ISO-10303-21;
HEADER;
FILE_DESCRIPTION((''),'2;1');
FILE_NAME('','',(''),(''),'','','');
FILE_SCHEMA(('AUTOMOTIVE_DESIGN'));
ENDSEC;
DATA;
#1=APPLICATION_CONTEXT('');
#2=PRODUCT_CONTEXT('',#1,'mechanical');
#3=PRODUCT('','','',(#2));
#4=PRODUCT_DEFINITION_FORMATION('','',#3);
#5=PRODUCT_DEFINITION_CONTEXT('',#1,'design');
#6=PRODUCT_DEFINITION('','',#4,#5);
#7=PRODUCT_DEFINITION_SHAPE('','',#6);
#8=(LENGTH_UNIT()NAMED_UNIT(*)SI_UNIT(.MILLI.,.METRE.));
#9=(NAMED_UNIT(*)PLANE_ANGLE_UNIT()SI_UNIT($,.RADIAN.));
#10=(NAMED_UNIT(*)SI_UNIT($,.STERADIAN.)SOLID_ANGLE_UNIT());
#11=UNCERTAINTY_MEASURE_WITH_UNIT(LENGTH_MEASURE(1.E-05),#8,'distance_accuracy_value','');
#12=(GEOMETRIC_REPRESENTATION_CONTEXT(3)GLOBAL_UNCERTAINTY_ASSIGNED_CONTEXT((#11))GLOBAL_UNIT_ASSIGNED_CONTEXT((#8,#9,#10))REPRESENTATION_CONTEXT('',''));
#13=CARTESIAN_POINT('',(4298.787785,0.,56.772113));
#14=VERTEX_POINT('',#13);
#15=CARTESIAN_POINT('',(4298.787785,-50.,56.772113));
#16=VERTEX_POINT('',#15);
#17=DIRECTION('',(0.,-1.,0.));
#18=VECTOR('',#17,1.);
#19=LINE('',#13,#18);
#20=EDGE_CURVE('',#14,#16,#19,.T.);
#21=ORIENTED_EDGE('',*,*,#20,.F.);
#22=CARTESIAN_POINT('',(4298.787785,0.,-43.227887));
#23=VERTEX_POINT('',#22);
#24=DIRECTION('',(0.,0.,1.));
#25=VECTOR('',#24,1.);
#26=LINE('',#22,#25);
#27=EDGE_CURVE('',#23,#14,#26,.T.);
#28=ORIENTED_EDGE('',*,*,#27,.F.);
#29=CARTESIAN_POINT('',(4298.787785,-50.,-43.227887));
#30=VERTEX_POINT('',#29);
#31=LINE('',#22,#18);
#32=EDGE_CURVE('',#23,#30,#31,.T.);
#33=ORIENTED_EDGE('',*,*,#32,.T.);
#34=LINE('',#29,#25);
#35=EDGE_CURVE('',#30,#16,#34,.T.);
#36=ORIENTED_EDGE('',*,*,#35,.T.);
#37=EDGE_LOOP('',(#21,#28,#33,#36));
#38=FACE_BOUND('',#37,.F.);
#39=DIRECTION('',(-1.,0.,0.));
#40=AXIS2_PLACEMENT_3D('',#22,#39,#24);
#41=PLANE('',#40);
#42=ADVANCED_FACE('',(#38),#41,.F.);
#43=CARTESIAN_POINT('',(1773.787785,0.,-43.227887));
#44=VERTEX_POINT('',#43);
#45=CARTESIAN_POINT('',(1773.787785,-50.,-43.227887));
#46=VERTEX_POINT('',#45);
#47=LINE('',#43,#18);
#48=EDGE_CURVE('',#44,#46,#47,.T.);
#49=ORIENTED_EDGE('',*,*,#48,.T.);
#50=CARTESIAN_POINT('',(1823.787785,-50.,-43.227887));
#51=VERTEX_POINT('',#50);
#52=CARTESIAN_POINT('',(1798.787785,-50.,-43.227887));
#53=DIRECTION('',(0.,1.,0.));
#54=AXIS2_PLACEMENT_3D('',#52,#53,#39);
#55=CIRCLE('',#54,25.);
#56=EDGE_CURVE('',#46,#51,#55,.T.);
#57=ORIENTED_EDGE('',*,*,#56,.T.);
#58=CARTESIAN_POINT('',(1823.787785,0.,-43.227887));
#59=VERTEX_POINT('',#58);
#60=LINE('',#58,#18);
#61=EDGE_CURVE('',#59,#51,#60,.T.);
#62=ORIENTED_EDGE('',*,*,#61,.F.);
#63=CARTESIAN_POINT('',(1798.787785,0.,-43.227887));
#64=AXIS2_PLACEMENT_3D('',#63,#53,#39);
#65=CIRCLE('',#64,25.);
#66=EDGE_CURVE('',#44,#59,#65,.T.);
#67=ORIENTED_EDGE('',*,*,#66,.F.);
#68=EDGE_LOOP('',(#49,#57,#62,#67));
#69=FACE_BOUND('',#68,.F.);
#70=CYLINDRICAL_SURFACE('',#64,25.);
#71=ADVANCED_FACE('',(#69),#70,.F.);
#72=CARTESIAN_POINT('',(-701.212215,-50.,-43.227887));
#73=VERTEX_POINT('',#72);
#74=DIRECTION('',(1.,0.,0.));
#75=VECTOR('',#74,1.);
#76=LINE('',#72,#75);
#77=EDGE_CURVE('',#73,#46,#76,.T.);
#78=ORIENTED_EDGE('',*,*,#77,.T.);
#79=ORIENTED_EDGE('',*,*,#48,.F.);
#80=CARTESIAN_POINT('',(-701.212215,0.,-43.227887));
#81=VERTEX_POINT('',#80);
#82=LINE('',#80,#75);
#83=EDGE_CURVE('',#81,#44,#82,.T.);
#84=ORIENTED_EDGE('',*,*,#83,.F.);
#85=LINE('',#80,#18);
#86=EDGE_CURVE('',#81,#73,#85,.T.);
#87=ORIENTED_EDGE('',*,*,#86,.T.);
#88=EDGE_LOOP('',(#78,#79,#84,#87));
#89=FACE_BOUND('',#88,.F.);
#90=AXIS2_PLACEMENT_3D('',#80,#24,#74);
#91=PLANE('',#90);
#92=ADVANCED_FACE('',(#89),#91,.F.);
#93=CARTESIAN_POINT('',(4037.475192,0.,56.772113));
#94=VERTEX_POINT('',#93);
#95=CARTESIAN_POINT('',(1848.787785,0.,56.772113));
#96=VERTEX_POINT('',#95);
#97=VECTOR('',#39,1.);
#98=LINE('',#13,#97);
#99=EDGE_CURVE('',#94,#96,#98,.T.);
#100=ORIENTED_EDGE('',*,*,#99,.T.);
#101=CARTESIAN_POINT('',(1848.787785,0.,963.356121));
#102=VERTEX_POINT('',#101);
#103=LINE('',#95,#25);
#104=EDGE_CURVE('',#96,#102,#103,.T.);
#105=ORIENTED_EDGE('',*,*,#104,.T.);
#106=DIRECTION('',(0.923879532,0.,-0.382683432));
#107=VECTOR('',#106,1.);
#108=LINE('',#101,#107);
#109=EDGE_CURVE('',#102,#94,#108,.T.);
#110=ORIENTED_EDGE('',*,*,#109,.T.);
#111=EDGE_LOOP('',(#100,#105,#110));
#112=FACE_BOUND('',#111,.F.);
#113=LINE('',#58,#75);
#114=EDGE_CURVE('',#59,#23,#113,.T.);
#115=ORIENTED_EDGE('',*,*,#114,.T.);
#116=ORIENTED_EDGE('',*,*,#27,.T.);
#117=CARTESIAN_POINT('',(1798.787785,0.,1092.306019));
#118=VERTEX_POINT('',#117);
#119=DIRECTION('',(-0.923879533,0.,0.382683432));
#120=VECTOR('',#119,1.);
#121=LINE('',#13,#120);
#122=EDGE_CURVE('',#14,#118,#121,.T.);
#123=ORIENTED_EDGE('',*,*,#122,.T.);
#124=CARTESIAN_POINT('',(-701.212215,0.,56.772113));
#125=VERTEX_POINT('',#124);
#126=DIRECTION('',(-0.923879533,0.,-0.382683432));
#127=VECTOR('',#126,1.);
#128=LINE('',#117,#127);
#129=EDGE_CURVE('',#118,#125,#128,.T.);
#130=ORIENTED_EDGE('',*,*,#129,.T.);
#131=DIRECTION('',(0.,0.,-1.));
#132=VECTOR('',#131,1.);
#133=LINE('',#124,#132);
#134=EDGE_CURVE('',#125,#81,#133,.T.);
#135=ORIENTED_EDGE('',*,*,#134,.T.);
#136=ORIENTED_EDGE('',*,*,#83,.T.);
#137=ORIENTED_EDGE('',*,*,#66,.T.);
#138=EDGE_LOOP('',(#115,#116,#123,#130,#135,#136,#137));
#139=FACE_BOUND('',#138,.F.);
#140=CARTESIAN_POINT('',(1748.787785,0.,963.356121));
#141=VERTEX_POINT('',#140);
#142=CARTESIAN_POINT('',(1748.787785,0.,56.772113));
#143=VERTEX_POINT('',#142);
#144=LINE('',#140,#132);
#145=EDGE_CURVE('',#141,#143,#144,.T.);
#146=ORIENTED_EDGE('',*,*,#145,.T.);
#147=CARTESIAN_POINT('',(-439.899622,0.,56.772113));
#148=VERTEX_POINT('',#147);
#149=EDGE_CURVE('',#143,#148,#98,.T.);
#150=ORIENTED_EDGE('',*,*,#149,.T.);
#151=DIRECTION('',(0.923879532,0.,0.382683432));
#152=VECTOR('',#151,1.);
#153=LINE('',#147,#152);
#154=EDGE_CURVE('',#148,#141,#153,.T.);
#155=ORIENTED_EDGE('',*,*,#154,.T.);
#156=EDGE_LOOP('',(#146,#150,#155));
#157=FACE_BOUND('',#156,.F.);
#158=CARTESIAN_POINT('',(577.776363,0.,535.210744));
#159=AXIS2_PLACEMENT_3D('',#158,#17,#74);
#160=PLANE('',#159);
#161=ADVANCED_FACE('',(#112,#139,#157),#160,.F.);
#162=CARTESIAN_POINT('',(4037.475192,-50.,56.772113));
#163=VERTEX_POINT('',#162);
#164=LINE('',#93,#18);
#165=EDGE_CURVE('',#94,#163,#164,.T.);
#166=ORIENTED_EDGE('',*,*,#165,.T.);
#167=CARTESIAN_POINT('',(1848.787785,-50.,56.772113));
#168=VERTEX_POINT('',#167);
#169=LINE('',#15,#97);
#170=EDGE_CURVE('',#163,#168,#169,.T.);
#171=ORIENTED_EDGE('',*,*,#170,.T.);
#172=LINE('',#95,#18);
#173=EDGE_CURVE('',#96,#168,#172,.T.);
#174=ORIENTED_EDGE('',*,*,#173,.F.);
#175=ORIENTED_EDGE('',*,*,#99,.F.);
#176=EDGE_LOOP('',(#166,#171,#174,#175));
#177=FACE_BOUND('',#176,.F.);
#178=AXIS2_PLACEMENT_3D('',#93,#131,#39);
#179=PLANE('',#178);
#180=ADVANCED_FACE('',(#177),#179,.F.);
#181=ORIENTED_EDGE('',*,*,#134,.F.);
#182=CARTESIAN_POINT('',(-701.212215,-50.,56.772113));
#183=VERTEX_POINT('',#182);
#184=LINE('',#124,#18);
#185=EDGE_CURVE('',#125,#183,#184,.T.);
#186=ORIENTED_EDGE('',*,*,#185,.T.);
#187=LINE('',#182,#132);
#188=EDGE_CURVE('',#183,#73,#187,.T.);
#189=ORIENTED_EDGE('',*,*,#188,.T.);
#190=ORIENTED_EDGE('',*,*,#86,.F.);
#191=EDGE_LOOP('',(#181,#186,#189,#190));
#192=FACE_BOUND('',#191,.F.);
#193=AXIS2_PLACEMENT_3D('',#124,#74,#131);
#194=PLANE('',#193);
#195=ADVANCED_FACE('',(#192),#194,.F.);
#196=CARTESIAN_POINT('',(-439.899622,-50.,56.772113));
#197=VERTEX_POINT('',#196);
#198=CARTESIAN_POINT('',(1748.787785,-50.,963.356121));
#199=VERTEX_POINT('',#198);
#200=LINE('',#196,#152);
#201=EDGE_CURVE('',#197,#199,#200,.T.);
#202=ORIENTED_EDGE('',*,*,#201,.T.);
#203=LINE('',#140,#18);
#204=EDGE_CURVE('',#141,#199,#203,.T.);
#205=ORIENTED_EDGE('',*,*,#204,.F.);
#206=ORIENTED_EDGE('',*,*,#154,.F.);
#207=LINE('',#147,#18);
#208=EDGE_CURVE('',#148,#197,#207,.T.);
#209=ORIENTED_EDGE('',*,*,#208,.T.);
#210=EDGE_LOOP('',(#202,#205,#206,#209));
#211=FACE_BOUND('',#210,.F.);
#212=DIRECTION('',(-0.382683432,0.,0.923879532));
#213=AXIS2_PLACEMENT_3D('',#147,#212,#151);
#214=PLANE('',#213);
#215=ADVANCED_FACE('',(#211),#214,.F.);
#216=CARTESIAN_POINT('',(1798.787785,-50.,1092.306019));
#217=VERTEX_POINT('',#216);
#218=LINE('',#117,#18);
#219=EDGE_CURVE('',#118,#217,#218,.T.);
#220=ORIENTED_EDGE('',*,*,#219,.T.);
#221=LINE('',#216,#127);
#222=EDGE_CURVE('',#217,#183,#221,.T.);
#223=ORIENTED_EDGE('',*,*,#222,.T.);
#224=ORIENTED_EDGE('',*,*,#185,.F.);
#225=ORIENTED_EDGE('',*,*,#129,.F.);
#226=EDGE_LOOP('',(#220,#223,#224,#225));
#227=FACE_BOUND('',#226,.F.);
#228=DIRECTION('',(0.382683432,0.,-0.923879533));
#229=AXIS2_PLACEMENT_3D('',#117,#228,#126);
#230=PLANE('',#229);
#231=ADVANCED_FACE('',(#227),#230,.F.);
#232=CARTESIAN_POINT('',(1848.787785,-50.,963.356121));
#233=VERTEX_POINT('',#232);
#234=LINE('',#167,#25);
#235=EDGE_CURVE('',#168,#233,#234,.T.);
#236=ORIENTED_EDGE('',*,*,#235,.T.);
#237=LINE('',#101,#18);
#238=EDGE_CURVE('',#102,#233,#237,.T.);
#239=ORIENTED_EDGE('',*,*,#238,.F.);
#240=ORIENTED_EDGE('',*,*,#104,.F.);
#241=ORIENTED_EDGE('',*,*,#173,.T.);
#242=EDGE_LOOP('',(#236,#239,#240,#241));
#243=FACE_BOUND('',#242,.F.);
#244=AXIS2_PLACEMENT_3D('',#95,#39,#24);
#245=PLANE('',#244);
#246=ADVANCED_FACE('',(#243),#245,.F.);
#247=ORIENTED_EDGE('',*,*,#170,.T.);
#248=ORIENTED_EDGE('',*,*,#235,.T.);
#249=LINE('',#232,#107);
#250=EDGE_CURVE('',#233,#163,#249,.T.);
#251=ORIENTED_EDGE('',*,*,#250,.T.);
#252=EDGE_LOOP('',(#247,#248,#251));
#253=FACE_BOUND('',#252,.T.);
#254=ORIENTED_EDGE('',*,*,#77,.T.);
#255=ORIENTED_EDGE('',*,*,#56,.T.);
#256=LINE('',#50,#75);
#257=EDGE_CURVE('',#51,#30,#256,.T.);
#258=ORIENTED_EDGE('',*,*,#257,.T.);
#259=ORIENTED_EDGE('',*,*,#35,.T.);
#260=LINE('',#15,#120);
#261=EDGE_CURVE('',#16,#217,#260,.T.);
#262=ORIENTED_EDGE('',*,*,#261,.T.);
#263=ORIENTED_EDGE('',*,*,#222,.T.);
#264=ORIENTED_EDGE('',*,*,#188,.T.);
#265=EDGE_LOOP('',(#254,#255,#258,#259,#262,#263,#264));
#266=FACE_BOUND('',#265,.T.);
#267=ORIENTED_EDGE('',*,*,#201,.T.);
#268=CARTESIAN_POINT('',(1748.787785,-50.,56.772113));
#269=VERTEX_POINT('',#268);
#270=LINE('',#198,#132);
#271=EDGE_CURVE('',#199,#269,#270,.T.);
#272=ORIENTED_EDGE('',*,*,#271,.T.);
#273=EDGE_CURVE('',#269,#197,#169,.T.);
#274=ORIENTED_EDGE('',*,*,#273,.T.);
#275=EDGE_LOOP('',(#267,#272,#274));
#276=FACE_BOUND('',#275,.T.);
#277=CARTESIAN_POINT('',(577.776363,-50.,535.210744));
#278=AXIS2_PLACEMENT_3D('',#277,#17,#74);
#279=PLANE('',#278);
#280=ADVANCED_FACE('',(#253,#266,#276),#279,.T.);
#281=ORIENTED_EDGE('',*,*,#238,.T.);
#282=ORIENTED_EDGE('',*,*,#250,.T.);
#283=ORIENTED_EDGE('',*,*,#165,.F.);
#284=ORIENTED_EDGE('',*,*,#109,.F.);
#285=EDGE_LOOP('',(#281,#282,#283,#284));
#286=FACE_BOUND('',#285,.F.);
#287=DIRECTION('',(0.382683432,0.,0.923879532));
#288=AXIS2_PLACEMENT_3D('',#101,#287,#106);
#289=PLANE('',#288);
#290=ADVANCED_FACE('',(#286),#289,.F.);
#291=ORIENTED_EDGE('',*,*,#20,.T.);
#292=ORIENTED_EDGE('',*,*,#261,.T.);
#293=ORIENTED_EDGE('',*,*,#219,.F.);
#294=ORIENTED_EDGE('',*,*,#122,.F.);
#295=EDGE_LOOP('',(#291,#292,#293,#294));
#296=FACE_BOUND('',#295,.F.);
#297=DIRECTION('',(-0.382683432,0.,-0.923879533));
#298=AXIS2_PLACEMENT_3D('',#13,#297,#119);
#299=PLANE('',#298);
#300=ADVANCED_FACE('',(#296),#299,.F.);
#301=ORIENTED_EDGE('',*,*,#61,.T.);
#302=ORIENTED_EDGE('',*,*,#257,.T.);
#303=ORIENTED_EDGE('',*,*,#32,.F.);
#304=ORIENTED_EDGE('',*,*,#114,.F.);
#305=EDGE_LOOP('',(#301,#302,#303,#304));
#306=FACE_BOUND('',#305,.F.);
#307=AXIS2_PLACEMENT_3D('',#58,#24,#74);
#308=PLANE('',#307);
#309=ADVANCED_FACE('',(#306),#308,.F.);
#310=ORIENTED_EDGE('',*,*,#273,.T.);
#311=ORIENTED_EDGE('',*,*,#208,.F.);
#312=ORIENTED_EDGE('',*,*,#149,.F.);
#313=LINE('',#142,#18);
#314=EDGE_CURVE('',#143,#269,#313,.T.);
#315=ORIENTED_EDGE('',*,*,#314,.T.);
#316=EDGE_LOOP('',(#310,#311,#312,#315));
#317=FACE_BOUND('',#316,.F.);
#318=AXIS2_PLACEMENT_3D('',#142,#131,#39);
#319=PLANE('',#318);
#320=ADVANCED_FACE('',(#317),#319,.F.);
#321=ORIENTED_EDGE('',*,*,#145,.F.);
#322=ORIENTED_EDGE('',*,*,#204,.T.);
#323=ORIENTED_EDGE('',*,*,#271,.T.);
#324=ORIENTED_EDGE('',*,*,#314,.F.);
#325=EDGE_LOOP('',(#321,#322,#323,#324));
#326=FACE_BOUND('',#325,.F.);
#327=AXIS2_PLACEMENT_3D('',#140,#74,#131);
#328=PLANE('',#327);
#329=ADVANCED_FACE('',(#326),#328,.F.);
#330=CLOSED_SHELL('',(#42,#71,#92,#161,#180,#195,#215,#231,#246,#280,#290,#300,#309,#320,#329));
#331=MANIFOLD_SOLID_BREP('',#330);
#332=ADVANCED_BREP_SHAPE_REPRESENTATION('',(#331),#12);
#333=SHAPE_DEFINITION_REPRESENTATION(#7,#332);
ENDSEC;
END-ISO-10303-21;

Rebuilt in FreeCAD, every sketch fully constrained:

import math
import FreeCAD as App
import Part
import Sketcher
Q = App.Units.Quantity

doc = App.newDocument("Part")
body = doc.addObject("PartDesign::Body", "Body")

sketch1 = body.newObject("Sketcher::SketchObject", "Sketch")
sketch1.AttachmentSupport = (doc.getObject("XZ_Plane"), [""])
sketch1.MapMode = "FlatFace"
sketch1.addGeometry([
    Part.LineSegment(App.Vector(1799, 1092, 0), App.Vector(-701, 57, 0)),
    Part.LineSegment(App.Vector(-701, 57, 0), App.Vector(-701, -43, 0)),
    Part.LineSegment(App.Vector(-701, -43, 0), App.Vector(1774, -43, 0)),
    Part.ArcOfCircle(Part.Circle(App.Vector(1799, -43, 0), App.Vector(0, 0, 1), 25), math.radians(0), math.radians(180)),
    Part.LineSegment(App.Vector(1824, -43, 0), App.Vector(4299, -43, 0)),
    Part.LineSegment(App.Vector(4299, -43, 0), App.Vector(4299, 57, 0)),
    Part.LineSegment(App.Vector(4299, 57, 0), App.Vector(1799, 1092, 0)),
    Part.LineSegment(App.Vector(-440, 57, 0), App.Vector(1749, 963, 0)),
    Part.LineSegment(App.Vector(1749, 963, 0), App.Vector(1749, 57, 0)),
    Part.LineSegment(App.Vector(1749, 57, 0), App.Vector(-440, 57, 0)),
    Part.LineSegment(App.Vector(1849, 57, 0), App.Vector(1849, 963, 0)),
    Part.LineSegment(App.Vector(1849, 963, 0), App.Vector(4037, 57, 0)),
    Part.LineSegment(App.Vector(4037, 57, 0), App.Vector(1849, 57, 0)),
], False)
sketch1.addConstraint([
    Sketcher.Constraint("Coincident", 0, 2, 1, 1),
    Sketcher.Constraint("Coincident", 1, 2, 2, 1),
    Sketcher.Constraint("Coincident", 2, 2, 3, 2),
    Sketcher.Constraint("Coincident", 3, 1, 4, 1),
    Sketcher.Constraint("Coincident", 4, 2, 5, 1),
    Sketcher.Constraint("Coincident", 5, 2, 6, 1),
    Sketcher.Constraint("Coincident", 6, 2, 0, 1),
    Sketcher.Constraint("Coincident", 7, 2, 8, 1),
    Sketcher.Constraint("Coincident", 8, 2, 9, 1),
    Sketcher.Constraint("Coincident", 9, 2, 7, 1),
    Sketcher.Constraint("Coincident", 10, 2, 11, 1),
    Sketcher.Constraint("Coincident", 11, 2, 12, 1),
    Sketcher.Constraint("Coincident", 12, 2, 10, 1),
    Sketcher.Constraint("Vertical", 1),
    Sketcher.Constraint("Horizontal", 2),
    Sketcher.Constraint("Horizontal", 4),
    Sketcher.Constraint("Vertical", 5),
    Sketcher.Constraint("Vertical", 8),
    Sketcher.Constraint("Horizontal", 9),
    Sketcher.Constraint("Vertical", 10),
    Sketcher.Constraint("Horizontal", 12),
    Sketcher.Constraint("Parallel", 0, 7),
    Sketcher.Constraint("Parallel", 6, 11),
    Sketcher.Constraint("Horizontal", 3, 3, 1, 2),
    Sketcher.Constraint("Horizontal", 2, 2, 3, 1),
    Sketcher.Constraint("Horizontal", 0, 2, 5, 2),
    Sketcher.Constraint("Horizontal", 5, 2, 8, 2),
    Sketcher.Constraint("Horizontal", 7, 2, 10, 2),
    Sketcher.Constraint("Horizontal", 9, 2, 11, 2),
    Sketcher.Constraint("Vertical", 3, 3, 6, 2),
    Sketcher.Constraint("Equal", 2, 4),
    Sketcher.Constraint("Radius", 3, 25.0),
    Sketcher.Constraint("DistanceX", 2, 1, 2, 2, 2475.0),
    Sketcher.Constraint("DistanceY", 1, 2, 1, 1, 100.0),
    Sketcher.Constraint("Angle", 0, Q("-157.5 deg")),
    Sketcher.Constraint("DistanceX", 7, 2, 6, 2, 50.0),
    Sketcher.Constraint("DistanceX", 7, 2, 10, 2, 100.0),
    Sketcher.Constraint("DistanceY", 8, 2, 8, 1, 906.584008),
    Sketcher.Constraint("DistanceY", -1, 1, 6, 2, 1092.306019),
    Sketcher.Constraint("DistanceX", 9, 2, -1, 1, 439.899622),
])
pad1 = body.newObject("PartDesign::Pad", "Pad")
pad1.Profile = sketch1
pad1.Length = 50

doc.recompute()
